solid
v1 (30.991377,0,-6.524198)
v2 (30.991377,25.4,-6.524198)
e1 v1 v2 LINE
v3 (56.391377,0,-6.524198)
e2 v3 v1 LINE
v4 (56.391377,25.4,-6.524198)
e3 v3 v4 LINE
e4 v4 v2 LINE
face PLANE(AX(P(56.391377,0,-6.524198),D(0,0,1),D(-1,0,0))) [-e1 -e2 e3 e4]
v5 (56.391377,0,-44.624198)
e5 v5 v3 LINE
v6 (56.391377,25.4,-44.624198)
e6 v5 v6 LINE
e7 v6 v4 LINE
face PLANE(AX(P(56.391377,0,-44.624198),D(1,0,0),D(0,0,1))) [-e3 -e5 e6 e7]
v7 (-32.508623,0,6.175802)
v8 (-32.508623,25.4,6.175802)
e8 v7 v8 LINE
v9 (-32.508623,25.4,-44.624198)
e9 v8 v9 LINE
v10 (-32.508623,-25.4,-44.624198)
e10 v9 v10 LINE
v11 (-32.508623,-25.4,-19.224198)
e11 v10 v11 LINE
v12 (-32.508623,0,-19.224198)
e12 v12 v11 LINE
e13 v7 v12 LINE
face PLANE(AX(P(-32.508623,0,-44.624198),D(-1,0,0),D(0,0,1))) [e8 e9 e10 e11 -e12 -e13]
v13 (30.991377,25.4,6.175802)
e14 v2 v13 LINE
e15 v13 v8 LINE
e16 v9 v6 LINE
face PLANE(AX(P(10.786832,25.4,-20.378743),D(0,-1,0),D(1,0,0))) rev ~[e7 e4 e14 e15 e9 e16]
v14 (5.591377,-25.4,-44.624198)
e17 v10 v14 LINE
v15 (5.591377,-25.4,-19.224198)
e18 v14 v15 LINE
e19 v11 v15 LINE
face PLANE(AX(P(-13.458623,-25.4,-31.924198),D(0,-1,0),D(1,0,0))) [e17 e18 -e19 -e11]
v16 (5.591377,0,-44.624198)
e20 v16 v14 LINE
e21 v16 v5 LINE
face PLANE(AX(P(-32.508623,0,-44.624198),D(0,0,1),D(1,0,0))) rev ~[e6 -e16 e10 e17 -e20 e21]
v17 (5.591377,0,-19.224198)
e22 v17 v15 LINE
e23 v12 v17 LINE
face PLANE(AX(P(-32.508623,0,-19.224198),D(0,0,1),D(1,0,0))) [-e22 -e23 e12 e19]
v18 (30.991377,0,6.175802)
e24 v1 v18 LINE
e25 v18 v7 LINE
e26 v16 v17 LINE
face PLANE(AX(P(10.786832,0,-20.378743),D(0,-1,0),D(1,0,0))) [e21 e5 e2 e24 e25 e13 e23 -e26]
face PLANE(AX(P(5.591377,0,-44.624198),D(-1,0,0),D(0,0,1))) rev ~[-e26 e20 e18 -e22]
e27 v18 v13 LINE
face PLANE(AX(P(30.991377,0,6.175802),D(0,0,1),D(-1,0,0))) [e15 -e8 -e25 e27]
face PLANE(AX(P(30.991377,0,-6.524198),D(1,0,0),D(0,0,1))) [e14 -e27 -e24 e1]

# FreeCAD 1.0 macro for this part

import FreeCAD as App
import Part
import Sketcher

V = App.Vector
Q = App.Units.Quantity


def add_polygon(sketch, points):
    """Adds a closed chain of lines whose ends are joined by coincident constraints."""
    first, n = sketch.GeometryCount, len(points)
    for a, b in zip(points, points[1:] + points[:1]):
        sketch.addGeometry(Part.LineSegment(App.Vector(*a, 0), App.Vector(*b, 0)), False)
    for i in range(n):
        sketch.addConstraint(Sketcher.Constraint("Coincident", first + i, 2, first + (i + 1) % n, 1))

doc = App.newDocument("Part")
params = doc.addObject("Spreadsheet::Sheet", "Params")
for row, (alias, value) in enumerate([
    ("sketch1_width", "1 in"),
    ("sketch1_height", "2 in"),
    ("sketch1_width2", "2.5 in"),
    ("sketch1_height2", "1.5 in"),
    ("pad1_length", "1 in"),
    ("sketch2_height", "1 in"),
    ("sketch2_width", "1.5 in"),
    ("pad2_length", "1 in"),
], start=1):
    params.set(f"A{row}", alias)
    params.set(f"B{row}", "=" + value)
    params.setAlias(f"B{row}", alias)

body = doc.addObject("PartDesign::Body", "Body")

# Sketch on XZ plane
sketch1 = doc.addObject("Sketcher::SketchObject", "Sketch")
body.addObject(sketch1)
sketch1.AttachmentSupport = (doc.XZ_Plane, [""])
sketch1.MapMode = "FlatFace"
add_polygon(sketch1, [(31, 6), (-33, 6), (-33, -45), (56, -45), (56, -7), (31, -7)])  # lines 0-5
sketch1.addConstraint(Sketcher.Constraint("Horizontal", 0))
sketch1.addConstraint(Sketcher.Constraint("Vertical", 1))
sketch1.addConstraint(Sketcher.Constraint("Horizontal", 2))
sketch1.addConstraint(Sketcher.Constraint("Vertical", 3))
sketch1.addConstraint(Sketcher.Constraint("Horizontal", 4))
sketch1.addConstraint(Sketcher.Constraint("Vertical", 5))
sketch1.addConstraint(Sketcher.Constraint("DistanceX", 4, 2, 4, 1, Q("1 in")))
sketch1.addConstraint(Sketcher.Constraint("DistanceY", 1, 2, 1, 1, Q("2 in")))
sketch1.addConstraint(Sketcher.Constraint("DistanceX", 0, 2, 0, 1, Q("2.5 in")))
sketch1.addConstraint(Sketcher.Constraint("DistanceY", 3, 1, 3, 2, Q("1.5 in")))
sketch1.addConstraint(Sketcher.Constraint("DistanceX", 0, 2, -1, 1, Q("32.508623 mm")))
sketch1.addConstraint(Sketcher.Constraint("DistanceY", -1, 1, 0, 2, Q("6.175802 mm")))
sketch1.setExpression("Constraints[12]", "Params.sketch1_width")
sketch1.setExpression("Constraints[13]", "Params.sketch1_height")
sketch1.setExpression("Constraints[14]", "Params.sketch1_width2")
sketch1.setExpression("Constraints[15]", "Params.sketch1_height2")
pad1 = doc.addObject("PartDesign::Pad", "Pad")
body.addObject(pad1)
pad1.Profile = sketch1
pad1.setExpression("Length", "Params.pad1_length")
pad1.Reversed = True

# Sketch on XZ plane
sketch2 = doc.addObject("Sketcher::SketchObject", "Sketch001")
body.addObject(sketch2)
sketch2.AttachmentSupport = (doc.XZ_Plane, [""])
sketch2.MapMode = "FlatFace"
add_polygon(sketch2, [(-33, -19), (-33, -45), (6, -45), (6, -19)])  # lines 0-3
sketch2.addConstraint(Sketcher.Constraint("Vertical", 0))
sketch2.addConstraint(Sketcher.Constraint("Horizontal", 1))
sketch2.addConstraint(Sketcher.Constraint("Vertical", 2))
sketch2.addConstraint(Sketcher.Constraint("Horizontal", 3))
sketch2.addConstraint(Sketcher.Constraint("DistanceY", 0, 2, 0, 1, Q("1 in")))
sketch2.addConstraint(Sketcher.Constraint("DistanceX", 1, 1, 1, 2, Q("1.5 in")))
sketch2.addConstraint(Sketcher.Constraint("DistanceY", 2, 2, -1, 1, Q("19.224198 mm")))
sketch2.addConstraint(Sketcher.Constraint("DistanceX", 0, 2, -1, 1, Q("32.508623 mm")))
sketch2.setExpression("Constraints[8]", "Params.sketch2_height")
sketch2.setExpression("Constraints[9]", "Params.sketch2_width")
pad2 = doc.addObject("PartDesign::Pad", "Pad001")
body.addObject(pad2)
pad2.Profile = sketch2
pad2.setExpression("Length", "Params.pad2_length")

doc.recompute()
